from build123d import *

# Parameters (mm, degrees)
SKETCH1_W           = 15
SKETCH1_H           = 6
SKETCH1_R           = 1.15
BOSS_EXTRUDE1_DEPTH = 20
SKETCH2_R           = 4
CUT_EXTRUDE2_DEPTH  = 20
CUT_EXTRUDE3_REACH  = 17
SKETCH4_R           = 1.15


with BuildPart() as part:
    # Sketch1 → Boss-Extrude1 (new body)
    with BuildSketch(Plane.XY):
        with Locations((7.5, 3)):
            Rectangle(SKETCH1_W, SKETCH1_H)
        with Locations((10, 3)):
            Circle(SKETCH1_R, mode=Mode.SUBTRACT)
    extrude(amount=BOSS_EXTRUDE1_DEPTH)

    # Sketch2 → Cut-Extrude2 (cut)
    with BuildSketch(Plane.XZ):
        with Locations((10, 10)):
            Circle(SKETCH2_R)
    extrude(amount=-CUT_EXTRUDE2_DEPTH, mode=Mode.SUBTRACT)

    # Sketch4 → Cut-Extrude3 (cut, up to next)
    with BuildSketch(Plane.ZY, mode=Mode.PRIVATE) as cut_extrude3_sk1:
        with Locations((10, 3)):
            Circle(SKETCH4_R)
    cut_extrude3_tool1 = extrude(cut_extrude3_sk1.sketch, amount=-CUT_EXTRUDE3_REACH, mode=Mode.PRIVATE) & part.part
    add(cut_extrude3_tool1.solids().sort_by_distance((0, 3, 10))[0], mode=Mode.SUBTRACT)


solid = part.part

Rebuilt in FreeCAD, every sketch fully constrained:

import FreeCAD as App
import Part
import Sketcher
from FreeCAD import Vector
Q = App.Units.Quantity


def add_polygon(sketch, points):
    """Adds a closed chain of lines whose ends are joined by coincident constraints."""
    first, n = sketch.GeometryCount, len(points)
    for a, b in zip(points, points[1:] + points[:1]):
        sketch.addGeometry(Part.LineSegment(App.Vector(*a, 0), App.Vector(*b, 0)), False)
    for i in range(n):
        sketch.addConstraint(Sketcher.Constraint("Coincident", first + i, 2, first + (i + 1) % n, 1))

doc = App.newDocument("Part")
body = doc.addObject("PartDesign::Body", "Body")

# Sketch on XY plane
sketch1 = body.newObject("Sketcher::SketchObject", "Sketch")
sketch1.AttachmentSupport = (doc.getObject("XY_Plane"), [""])
sketch1.MapMode = "FlatFace"
add_polygon(sketch1, [(0, 6), (0, 0), (15, 0), (15, 6)])  # lines 0-3
sketch1.addGeometry(Part.Circle(Vector(10, 3, 0), Vector(0, 0, 1), 1.1), False)  # 4
sketch1.addConstraint(Sketcher.Constraint("Vertical", 0))
sketch1.addConstraint(Sketcher.Constraint("Horizontal", 1))
sketch1.addConstraint(Sketcher.Constraint("Vertical", 2))
sketch1.addConstraint(Sketcher.Constraint("Horizontal", 3))
sketch1.addConstraint(Sketcher.Constraint("Coincident", 0, 2, -1, 1))
sketch1.addConstraint(Sketcher.Constraint("Diameter", 4, Q("2.3 mm")))
sketch1.addConstraint(Sketcher.Constraint("DistanceX", 1, 1, 1, 2, Q("15 mm")))
sketch1.addConstraint(Sketcher.Constraint("DistanceY", 0, 2, 0, 1, Q("6 mm")))
sketch1.addConstraint(Sketcher.Constraint("DistanceX", -1, 1, 4, 3, Q("10 mm")))
sketch1.addConstraint(Sketcher.Constraint("DistanceY", -1, 1, 4, 3, Q("3 mm")))
pad1 = body.newObject("PartDesign::Pad", "Pad")
pad1.Profile = sketch1
pad1.Length = 20

# Sketch on XZ plane
sketch2 = body.newObject("Sketcher::SketchObject", "Sketch001")
sketch2.AttachmentSupport = (doc.getObject("XZ_Plane"), [""])
sketch2.MapMode = "FlatFace"
sketch2.addGeometry(Part.Circle(Vector(10, 10, 0), Vector(0, 0, 1), 4), False)
sketch2.addConstraint(Sketcher.Constraint("Diameter", 0, Q("8 mm")))
sketch2.addConstraint(Sketcher.Constraint("DistanceX", -1, 1, 0, 3, Q("10 mm")))
sketch2.addConstraint(Sketcher.Constraint("DistanceY", -1, 1, 0, 3, Q("10 mm")))
pocket1 = body.newObject("PartDesign::Pocket", "Pocket")
pocket1.Profile = sketch2
pocket1.Length = 20

# Sketch on YZ plane
sketch3 = body.newObject("Sketcher::SketchObject", "Sketch002")
sketch3.AttachmentSupport = (doc.getObject("YZ_Plane"), [""])
sketch3.MapMode = "FlatFace"
sketch3.addGeometry(Part.Circle(Vector(3, 10, 0), Vector(0, 0, 1), 1.1), False)
sketch3.addConstraint(Sketcher.Constraint("Diameter", 0, Q("2.3 mm")))
sketch3.addConstraint(Sketcher.Constraint("DistanceX", -1, 1, 0, 3, Q("3 mm")))
sketch3.addConstraint(Sketcher.Constraint("DistanceY", -1, 1, 0, 3, Q("10 mm")))
pocket2 = body.newObject("PartDesign::Pocket", "Pocket001")
pocket2.Profile = sketch3
pocket2.Type = "UpToFirst"
pocket2.Reversed = True

doc.recompute()
